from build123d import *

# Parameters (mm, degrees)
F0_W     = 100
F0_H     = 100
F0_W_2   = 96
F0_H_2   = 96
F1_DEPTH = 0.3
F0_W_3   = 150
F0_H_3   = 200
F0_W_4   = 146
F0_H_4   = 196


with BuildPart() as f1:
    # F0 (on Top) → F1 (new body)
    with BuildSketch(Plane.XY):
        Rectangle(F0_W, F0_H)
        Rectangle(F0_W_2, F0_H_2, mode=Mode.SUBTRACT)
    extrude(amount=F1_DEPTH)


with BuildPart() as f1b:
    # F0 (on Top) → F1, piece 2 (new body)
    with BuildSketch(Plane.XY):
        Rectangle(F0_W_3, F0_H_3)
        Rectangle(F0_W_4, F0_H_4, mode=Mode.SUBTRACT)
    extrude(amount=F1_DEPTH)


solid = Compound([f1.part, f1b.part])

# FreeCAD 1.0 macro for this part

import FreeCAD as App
import Part
import Sketcher
from FreeCAD import Vector
Q = App.Units.Quantity

doc = App.newDocument("Part")
params = doc.addObject("Spreadsheet::Sheet", "Params")
for row, (alias, value) in enumerate([
    ("sketch1_width", "100 mm"),
    ("sketch1_width2", "96 mm"),
    ("pad1_length", "0.3 mm"),
    ("sketch2_width", "150 mm"),
    ("sketch2_width2", "146 mm"),
    ("sketch2_height", "200 mm"),
    ("sketch2_height2", "196 mm"),
    ("pad2_length", "0.3 mm"),
], start=1):
    params.set(f"A{row}", alias)
    params.set(f"B{row}", "=" + value)
    params.setAlias(f"B{row}", alias)

body = doc.addObject("PartDesign::Body", "Body")

# Sketch on XY plane
sketch1 = body.newObject("Sketcher::SketchObject", "Sketch")
sketch1.AttachmentSupport = (doc.getObject("XY_Plane"), [""])
sketch1.MapMode = "FlatFace"
sketch1.addGeometry([
    Part.LineSegment(Vector(-50, 50, 0), Vector(-50, -50, 0)),  # 0
    Part.LineSegment(Vector(-50, -50, 0), Vector(50, -50, 0)),  # 1
    Part.LineSegment(Vector(50, -50, 0), Vector(50, 50, 0)),  # 2
    Part.LineSegment(Vector(50, 50, 0), Vector(-50, 50, 0)),  # 3
    Part.LineSegment(Vector(48, -48, 0), Vector(-48, -48, 0)),  # 4
    Part.LineSegment(Vector(-48, -48, 0), Vector(-48, 48, 0)),  # 5
    Part.LineSegment(Vector(-48, 48, 0), Vector(48, 48, 0)),  # 6
    Part.LineSegment(Vector(48, 48, 0), Vector(48, -48, 0)),  # 7
], False)
sketch1.addConstraint([
    Sketcher.Constraint("Coincident", 0, 2, 1, 1),
    Sketcher.Constraint("Coincident", 1, 2, 2, 1),
    Sketcher.Constraint("Coincident", 2, 2, 3, 1),
    Sketcher.Constraint("Coincident", 3, 2, 0, 1),
    Sketcher.Constraint("Coincident", 4, 2, 5, 1),
    Sketcher.Constraint("Coincident", 5, 2, 6, 1),
    Sketcher.Constraint("Coincident", 6, 2, 7, 1),
    Sketcher.Constraint("Coincident", 7, 2, 4, 1),
    Sketcher.Constraint("Vertical", 0),
    Sketcher.Constraint("Horizontal", 1),
    Sketcher.Constraint("Vertical", 2),
    Sketcher.Constraint("Horizontal", 3),
    Sketcher.Constraint("Horizontal", 4),
    Sketcher.Constraint("Vertical", 5),
    Sketcher.Constraint("Horizontal", 6),
    Sketcher.Constraint("Vertical", 7),
    Sketcher.Constraint("Symmetric", 0, 2, 2, 2, -1, 1),
    Sketcher.Constraint("Symmetric", 4, 2, 6, 2, -1, 1),
    Sketcher.Constraint("Equal", 3, 0),
    Sketcher.Constraint("Equal", 6, 5),
    Sketcher.Constraint("DistanceX", 1, 1, 1, 2, Q("100 mm")),
    Sketcher.Constraint("DistanceX", 4, 2, 4, 1, Q("96 mm")),
])
sketch1.setExpression("Constraints[20]", "Params.sketch1_width")
sketch1.setExpression("Constraints[21]", "Params.sketch1_width2")
pad1 = body.newObject("PartDesign::Pad", "Pad")
pad1.Profile = sketch1
pad1.setExpression("Length", "Params.pad1_length")
body2 = doc.addObject("PartDesign::Body", "Body001")

# Sketch on XY plane
sketch2 = body2.newObject("Sketcher::SketchObject", "Sketch001")
sketch2.AttachmentSupport = (doc.getObject("XY_Plane001"), [""])
sketch2.MapMode = "FlatFace"
sketch2.addGeometry([
    Part.LineSegment(Vector(-75, 100, 0), Vector(-75, -100, 0)),  # 0
    Part.LineSegment(Vector(-75, -100, 0), Vector(75, -100, 0)),  # 1
    Part.LineSegment(Vector(75, -100, 0), Vector(75, 100, 0)),  # 2
    Part.LineSegment(Vector(75, 100, 0), Vector(-75, 100, 0)),  # 3
    Part.LineSegment(Vector(73, -98, 0), Vector(-73, -98, 0)),  # 4
    Part.LineSegment(Vector(-73, -98, 0), Vector(-73, 98, 0)),  # 5
    Part.LineSegment(Vector(-73, 98, 0), Vector(73, 98, 0)),  # 6
    Part.LineSegment(Vector(73, 98, 0), Vector(73, -98, 0)),  # 7
], False)
sketch2.addConstraint([
    Sketcher.Constraint("Coincident", 0, 2, 1, 1),
    Sketcher.Constraint("Coincident", 1, 2, 2, 1),
    Sketcher.Constraint("Coincident", 2, 2, 3, 1),
    Sketcher.Constraint("Coincident", 3, 2, 0, 1),
    Sketcher.Constraint("Coincident", 4, 2, 5, 1),
    Sketcher.Constraint("Coincident", 5, 2, 6, 1),
    Sketcher.Constraint("Coincident", 6, 2, 7, 1),
    Sketcher.Constraint("Coincident", 7, 2, 4, 1),
    Sketcher.Constraint("Vertical", 0),
    Sketcher.Constraint("Horizontal", 1),
    Sketcher.Constraint("Vertical", 2),
    Sketcher.Constraint("Horizontal", 3),
    Sketcher.Constraint("Horizontal", 4),
    Sketcher.Constraint("Vertical", 5),
    Sketcher.Constraint("Horizontal", 6),
    Sketcher.Constraint("Vertical", 7),
    Sketcher.Constraint("Symmetric", 0, 2, 2, 2, -1, 1),
    Sketcher.Constraint("Symmetric", 4, 2, 6, 2, -1, 1),
    Sketcher.Constraint("DistanceX", 1, 1, 1, 2, Q("150 mm")),
    Sketcher.Constraint("DistanceX", 4, 2, 4, 1, Q("146 mm")),
    Sketcher.Constraint("DistanceY", 0, 2, 0, 1, Q("200 mm")),
    Sketcher.Constraint("DistanceY", 5, 1, 5, 2, Q("196 mm")),
])
sketch2.setExpression("Constraints[18]", "Params.sketch2_width")
sketch2.setExpression("Constraints[19]", "Params.sketch2_width2")
sketch2.setExpression("Constraints[20]", "Params.sketch2_height")
sketch2.setExpression("Constraints[21]", "Params.sketch2_height2")
pad2 = body2.newObject("PartDesign::Pad", "Pad001")
pad2.Profile = sketch2
pad2.setExpression("Length", "Params.pad2_length")

doc.recompute()
